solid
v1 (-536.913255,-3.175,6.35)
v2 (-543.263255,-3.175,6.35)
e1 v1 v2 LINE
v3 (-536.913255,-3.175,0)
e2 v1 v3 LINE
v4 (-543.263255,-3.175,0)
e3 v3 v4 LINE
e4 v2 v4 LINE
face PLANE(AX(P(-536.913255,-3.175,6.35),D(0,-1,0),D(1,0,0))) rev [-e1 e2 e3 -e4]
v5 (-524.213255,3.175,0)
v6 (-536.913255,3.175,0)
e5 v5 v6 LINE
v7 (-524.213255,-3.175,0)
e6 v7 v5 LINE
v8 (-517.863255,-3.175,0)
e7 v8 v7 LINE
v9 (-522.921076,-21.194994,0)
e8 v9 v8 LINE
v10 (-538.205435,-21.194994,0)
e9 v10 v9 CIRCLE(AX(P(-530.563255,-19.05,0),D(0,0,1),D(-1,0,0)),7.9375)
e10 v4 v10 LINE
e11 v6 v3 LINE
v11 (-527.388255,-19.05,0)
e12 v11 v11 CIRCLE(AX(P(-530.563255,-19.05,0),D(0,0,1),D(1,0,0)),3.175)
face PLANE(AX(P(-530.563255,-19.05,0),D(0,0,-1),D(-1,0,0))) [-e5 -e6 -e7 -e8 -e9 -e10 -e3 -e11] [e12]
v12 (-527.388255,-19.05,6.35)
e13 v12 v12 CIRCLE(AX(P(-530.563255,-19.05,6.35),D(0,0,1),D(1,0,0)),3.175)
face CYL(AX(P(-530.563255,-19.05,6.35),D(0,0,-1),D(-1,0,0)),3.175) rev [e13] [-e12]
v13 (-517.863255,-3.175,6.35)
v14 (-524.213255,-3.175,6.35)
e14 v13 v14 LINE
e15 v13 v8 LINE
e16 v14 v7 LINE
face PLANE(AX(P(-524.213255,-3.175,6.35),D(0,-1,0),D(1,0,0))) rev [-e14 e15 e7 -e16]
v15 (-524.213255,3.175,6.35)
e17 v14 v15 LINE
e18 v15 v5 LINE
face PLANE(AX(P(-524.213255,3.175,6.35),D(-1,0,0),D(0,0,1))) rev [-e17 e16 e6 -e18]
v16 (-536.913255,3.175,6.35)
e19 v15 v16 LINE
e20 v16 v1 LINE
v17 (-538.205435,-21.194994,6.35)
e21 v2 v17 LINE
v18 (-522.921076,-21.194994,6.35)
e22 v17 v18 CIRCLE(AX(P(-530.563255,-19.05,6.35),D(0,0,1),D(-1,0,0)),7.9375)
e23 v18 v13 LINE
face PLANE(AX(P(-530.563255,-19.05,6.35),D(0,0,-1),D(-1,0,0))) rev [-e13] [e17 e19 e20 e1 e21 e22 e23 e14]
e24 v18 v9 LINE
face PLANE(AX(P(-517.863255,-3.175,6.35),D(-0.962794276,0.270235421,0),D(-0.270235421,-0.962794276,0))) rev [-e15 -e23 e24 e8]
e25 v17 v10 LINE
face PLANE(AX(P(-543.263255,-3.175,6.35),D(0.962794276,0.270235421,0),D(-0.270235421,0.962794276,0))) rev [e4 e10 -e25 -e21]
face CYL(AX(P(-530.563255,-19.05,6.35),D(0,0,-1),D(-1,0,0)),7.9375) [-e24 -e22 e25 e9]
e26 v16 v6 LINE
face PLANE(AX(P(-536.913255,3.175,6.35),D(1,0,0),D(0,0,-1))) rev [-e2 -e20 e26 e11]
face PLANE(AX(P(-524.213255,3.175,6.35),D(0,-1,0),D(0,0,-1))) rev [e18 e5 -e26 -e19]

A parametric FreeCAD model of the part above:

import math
import FreeCAD as App
import Part
import Sketcher

V = App.Vector
Q = App.Units.Quantity

doc = App.newDocument("Part")
body = doc.addObject("PartDesign::Body", "Body")

# Sketch on XY plane
sketch1 = doc.addObject("Sketcher::SketchObject", "Sketch")
body.addObject(sketch1)
sketch1.AttachmentSupport = (doc.XY_Plane, [""])
sketch1.MapMode = "FlatFace"
sketch1.addGeometry(Part.LineSegment(V(-524.2, 3.2, 0), V(-536.9, 3.2, 0)), False)
sketch1.addGeometry(Part.LineSegment(V(-536.9, 3.2, 0), V(-536.9, -3.2, 0)), False)
sketch1.addGeometry(Part.LineSegment(V(-536.9, -3.2, 0), V(-543.3, -3.2, 0)), False)
sketch1.addGeometry(Part.LineSegment(V(-543.3, -3.2, 0), V(-538.2, -21.2, 0)), False)
sketch1.addGeometry(Part.ArcOfCircle(Part.Circle(V(-530.6, -19.1, 0), V(0, 0, 1), 7.9), math.radians(-164), math.radians(-16)), False)
sketch1.addGeometry(Part.LineSegment(V(-522.9, -21.2, 0), V(-517.9, -3.2, 0)), False)
sketch1.addGeometry(Part.LineSegment(V(-517.9, -3.2, 0), V(-524.2, -3.2, 0)), False)
sketch1.addGeometry(Part.LineSegment(V(-524.2, -3.2, 0), V(-524.2, 3.2, 0)), False)
sketch1.addGeometry(Part.Circle(V(-530.6, -19.1, 0), V(0, 0, 1), 3.2), False)
sketch1.addConstraint(Sketcher.Constraint("Coincident", 0, 2, 1, 1))
sketch1.addConstraint(Sketcher.Constraint("Coincident", 1, 2, 2, 1))
sketch1.addConstraint(Sketcher.Constraint("Coincident", 2, 2, 3, 1))
sketch1.addConstraint(Sketcher.Constraint("Tangent", 3, 2, 4, 1))
sketch1.addConstraint(Sketcher.Constraint("Tangent", 4, 2, 5, 1))
sketch1.addConstraint(Sketcher.Constraint("Coincident", 5, 2, 6, 1))
sketch1.addConstraint(Sketcher.Constraint("Coincident", 6, 2, 7, 1))
sketch1.addConstraint(Sketcher.Constraint("Coincident", 7, 2, 0, 1))
sketch1.addConstraint(Sketcher.Constraint("Horizontal", 0))
sketch1.addConstraint(Sketcher.Constraint("Vertical", 1))
sketch1.addConstraint(Sketcher.Constraint("Horizontal", 2))
sketch1.addConstraint(Sketcher.Constraint("Horizontal", 6))
sketch1.addConstraint(Sketcher.Constraint("Vertical", 7))
sketch1.addConstraint(Sketcher.Constraint("Coincident", 8, 3, 4, 3))
sketch1.addConstraint(Sketcher.Constraint("Horizontal", 3, 2, 4, 2))
sketch1.addConstraint(Sketcher.Constraint("Horizontal", 2, 2, 5, 2))
sketch1.addConstraint(Sketcher.Constraint("Equal", 2, 6))
sketch1.addConstraint(Sketcher.Constraint("Equal", 6, 1))
sketch1.addConstraint(Sketcher.Constraint("Diameter", 8, Q("0.25 in")))
sketch1.addConstraint(Sketcher.Constraint("DistanceX", 0, 2, 0, 1, Q("0.5 in")))
sketch1.addConstraint(Sketcher.Constraint("Radius", 4, Q("0.3125 in")))
sketch1.addConstraint(Sketcher.Constraint("DistanceX", 2, 2, 2, 1, Q("0.25 in")))
sketch1.addConstraint(Sketcher.Constraint("DistanceY", 4, 3, -1, 1, Q("0.75 in")))
sketch1.addConstraint(Sketcher.Constraint("DistanceY", -1, 1, 0, 2, Q("0.125 in")))
sketch1.addConstraint(Sketcher.Constraint("DistanceX", 4, 3, -1, 1, 530.563255))
pad1 = doc.addObject("PartDesign::Pad", "Pad")
body.addObject(pad1)
pad1.Profile = sketch1
pad1.Length = Q("0.25 in")

doc.recompute()
